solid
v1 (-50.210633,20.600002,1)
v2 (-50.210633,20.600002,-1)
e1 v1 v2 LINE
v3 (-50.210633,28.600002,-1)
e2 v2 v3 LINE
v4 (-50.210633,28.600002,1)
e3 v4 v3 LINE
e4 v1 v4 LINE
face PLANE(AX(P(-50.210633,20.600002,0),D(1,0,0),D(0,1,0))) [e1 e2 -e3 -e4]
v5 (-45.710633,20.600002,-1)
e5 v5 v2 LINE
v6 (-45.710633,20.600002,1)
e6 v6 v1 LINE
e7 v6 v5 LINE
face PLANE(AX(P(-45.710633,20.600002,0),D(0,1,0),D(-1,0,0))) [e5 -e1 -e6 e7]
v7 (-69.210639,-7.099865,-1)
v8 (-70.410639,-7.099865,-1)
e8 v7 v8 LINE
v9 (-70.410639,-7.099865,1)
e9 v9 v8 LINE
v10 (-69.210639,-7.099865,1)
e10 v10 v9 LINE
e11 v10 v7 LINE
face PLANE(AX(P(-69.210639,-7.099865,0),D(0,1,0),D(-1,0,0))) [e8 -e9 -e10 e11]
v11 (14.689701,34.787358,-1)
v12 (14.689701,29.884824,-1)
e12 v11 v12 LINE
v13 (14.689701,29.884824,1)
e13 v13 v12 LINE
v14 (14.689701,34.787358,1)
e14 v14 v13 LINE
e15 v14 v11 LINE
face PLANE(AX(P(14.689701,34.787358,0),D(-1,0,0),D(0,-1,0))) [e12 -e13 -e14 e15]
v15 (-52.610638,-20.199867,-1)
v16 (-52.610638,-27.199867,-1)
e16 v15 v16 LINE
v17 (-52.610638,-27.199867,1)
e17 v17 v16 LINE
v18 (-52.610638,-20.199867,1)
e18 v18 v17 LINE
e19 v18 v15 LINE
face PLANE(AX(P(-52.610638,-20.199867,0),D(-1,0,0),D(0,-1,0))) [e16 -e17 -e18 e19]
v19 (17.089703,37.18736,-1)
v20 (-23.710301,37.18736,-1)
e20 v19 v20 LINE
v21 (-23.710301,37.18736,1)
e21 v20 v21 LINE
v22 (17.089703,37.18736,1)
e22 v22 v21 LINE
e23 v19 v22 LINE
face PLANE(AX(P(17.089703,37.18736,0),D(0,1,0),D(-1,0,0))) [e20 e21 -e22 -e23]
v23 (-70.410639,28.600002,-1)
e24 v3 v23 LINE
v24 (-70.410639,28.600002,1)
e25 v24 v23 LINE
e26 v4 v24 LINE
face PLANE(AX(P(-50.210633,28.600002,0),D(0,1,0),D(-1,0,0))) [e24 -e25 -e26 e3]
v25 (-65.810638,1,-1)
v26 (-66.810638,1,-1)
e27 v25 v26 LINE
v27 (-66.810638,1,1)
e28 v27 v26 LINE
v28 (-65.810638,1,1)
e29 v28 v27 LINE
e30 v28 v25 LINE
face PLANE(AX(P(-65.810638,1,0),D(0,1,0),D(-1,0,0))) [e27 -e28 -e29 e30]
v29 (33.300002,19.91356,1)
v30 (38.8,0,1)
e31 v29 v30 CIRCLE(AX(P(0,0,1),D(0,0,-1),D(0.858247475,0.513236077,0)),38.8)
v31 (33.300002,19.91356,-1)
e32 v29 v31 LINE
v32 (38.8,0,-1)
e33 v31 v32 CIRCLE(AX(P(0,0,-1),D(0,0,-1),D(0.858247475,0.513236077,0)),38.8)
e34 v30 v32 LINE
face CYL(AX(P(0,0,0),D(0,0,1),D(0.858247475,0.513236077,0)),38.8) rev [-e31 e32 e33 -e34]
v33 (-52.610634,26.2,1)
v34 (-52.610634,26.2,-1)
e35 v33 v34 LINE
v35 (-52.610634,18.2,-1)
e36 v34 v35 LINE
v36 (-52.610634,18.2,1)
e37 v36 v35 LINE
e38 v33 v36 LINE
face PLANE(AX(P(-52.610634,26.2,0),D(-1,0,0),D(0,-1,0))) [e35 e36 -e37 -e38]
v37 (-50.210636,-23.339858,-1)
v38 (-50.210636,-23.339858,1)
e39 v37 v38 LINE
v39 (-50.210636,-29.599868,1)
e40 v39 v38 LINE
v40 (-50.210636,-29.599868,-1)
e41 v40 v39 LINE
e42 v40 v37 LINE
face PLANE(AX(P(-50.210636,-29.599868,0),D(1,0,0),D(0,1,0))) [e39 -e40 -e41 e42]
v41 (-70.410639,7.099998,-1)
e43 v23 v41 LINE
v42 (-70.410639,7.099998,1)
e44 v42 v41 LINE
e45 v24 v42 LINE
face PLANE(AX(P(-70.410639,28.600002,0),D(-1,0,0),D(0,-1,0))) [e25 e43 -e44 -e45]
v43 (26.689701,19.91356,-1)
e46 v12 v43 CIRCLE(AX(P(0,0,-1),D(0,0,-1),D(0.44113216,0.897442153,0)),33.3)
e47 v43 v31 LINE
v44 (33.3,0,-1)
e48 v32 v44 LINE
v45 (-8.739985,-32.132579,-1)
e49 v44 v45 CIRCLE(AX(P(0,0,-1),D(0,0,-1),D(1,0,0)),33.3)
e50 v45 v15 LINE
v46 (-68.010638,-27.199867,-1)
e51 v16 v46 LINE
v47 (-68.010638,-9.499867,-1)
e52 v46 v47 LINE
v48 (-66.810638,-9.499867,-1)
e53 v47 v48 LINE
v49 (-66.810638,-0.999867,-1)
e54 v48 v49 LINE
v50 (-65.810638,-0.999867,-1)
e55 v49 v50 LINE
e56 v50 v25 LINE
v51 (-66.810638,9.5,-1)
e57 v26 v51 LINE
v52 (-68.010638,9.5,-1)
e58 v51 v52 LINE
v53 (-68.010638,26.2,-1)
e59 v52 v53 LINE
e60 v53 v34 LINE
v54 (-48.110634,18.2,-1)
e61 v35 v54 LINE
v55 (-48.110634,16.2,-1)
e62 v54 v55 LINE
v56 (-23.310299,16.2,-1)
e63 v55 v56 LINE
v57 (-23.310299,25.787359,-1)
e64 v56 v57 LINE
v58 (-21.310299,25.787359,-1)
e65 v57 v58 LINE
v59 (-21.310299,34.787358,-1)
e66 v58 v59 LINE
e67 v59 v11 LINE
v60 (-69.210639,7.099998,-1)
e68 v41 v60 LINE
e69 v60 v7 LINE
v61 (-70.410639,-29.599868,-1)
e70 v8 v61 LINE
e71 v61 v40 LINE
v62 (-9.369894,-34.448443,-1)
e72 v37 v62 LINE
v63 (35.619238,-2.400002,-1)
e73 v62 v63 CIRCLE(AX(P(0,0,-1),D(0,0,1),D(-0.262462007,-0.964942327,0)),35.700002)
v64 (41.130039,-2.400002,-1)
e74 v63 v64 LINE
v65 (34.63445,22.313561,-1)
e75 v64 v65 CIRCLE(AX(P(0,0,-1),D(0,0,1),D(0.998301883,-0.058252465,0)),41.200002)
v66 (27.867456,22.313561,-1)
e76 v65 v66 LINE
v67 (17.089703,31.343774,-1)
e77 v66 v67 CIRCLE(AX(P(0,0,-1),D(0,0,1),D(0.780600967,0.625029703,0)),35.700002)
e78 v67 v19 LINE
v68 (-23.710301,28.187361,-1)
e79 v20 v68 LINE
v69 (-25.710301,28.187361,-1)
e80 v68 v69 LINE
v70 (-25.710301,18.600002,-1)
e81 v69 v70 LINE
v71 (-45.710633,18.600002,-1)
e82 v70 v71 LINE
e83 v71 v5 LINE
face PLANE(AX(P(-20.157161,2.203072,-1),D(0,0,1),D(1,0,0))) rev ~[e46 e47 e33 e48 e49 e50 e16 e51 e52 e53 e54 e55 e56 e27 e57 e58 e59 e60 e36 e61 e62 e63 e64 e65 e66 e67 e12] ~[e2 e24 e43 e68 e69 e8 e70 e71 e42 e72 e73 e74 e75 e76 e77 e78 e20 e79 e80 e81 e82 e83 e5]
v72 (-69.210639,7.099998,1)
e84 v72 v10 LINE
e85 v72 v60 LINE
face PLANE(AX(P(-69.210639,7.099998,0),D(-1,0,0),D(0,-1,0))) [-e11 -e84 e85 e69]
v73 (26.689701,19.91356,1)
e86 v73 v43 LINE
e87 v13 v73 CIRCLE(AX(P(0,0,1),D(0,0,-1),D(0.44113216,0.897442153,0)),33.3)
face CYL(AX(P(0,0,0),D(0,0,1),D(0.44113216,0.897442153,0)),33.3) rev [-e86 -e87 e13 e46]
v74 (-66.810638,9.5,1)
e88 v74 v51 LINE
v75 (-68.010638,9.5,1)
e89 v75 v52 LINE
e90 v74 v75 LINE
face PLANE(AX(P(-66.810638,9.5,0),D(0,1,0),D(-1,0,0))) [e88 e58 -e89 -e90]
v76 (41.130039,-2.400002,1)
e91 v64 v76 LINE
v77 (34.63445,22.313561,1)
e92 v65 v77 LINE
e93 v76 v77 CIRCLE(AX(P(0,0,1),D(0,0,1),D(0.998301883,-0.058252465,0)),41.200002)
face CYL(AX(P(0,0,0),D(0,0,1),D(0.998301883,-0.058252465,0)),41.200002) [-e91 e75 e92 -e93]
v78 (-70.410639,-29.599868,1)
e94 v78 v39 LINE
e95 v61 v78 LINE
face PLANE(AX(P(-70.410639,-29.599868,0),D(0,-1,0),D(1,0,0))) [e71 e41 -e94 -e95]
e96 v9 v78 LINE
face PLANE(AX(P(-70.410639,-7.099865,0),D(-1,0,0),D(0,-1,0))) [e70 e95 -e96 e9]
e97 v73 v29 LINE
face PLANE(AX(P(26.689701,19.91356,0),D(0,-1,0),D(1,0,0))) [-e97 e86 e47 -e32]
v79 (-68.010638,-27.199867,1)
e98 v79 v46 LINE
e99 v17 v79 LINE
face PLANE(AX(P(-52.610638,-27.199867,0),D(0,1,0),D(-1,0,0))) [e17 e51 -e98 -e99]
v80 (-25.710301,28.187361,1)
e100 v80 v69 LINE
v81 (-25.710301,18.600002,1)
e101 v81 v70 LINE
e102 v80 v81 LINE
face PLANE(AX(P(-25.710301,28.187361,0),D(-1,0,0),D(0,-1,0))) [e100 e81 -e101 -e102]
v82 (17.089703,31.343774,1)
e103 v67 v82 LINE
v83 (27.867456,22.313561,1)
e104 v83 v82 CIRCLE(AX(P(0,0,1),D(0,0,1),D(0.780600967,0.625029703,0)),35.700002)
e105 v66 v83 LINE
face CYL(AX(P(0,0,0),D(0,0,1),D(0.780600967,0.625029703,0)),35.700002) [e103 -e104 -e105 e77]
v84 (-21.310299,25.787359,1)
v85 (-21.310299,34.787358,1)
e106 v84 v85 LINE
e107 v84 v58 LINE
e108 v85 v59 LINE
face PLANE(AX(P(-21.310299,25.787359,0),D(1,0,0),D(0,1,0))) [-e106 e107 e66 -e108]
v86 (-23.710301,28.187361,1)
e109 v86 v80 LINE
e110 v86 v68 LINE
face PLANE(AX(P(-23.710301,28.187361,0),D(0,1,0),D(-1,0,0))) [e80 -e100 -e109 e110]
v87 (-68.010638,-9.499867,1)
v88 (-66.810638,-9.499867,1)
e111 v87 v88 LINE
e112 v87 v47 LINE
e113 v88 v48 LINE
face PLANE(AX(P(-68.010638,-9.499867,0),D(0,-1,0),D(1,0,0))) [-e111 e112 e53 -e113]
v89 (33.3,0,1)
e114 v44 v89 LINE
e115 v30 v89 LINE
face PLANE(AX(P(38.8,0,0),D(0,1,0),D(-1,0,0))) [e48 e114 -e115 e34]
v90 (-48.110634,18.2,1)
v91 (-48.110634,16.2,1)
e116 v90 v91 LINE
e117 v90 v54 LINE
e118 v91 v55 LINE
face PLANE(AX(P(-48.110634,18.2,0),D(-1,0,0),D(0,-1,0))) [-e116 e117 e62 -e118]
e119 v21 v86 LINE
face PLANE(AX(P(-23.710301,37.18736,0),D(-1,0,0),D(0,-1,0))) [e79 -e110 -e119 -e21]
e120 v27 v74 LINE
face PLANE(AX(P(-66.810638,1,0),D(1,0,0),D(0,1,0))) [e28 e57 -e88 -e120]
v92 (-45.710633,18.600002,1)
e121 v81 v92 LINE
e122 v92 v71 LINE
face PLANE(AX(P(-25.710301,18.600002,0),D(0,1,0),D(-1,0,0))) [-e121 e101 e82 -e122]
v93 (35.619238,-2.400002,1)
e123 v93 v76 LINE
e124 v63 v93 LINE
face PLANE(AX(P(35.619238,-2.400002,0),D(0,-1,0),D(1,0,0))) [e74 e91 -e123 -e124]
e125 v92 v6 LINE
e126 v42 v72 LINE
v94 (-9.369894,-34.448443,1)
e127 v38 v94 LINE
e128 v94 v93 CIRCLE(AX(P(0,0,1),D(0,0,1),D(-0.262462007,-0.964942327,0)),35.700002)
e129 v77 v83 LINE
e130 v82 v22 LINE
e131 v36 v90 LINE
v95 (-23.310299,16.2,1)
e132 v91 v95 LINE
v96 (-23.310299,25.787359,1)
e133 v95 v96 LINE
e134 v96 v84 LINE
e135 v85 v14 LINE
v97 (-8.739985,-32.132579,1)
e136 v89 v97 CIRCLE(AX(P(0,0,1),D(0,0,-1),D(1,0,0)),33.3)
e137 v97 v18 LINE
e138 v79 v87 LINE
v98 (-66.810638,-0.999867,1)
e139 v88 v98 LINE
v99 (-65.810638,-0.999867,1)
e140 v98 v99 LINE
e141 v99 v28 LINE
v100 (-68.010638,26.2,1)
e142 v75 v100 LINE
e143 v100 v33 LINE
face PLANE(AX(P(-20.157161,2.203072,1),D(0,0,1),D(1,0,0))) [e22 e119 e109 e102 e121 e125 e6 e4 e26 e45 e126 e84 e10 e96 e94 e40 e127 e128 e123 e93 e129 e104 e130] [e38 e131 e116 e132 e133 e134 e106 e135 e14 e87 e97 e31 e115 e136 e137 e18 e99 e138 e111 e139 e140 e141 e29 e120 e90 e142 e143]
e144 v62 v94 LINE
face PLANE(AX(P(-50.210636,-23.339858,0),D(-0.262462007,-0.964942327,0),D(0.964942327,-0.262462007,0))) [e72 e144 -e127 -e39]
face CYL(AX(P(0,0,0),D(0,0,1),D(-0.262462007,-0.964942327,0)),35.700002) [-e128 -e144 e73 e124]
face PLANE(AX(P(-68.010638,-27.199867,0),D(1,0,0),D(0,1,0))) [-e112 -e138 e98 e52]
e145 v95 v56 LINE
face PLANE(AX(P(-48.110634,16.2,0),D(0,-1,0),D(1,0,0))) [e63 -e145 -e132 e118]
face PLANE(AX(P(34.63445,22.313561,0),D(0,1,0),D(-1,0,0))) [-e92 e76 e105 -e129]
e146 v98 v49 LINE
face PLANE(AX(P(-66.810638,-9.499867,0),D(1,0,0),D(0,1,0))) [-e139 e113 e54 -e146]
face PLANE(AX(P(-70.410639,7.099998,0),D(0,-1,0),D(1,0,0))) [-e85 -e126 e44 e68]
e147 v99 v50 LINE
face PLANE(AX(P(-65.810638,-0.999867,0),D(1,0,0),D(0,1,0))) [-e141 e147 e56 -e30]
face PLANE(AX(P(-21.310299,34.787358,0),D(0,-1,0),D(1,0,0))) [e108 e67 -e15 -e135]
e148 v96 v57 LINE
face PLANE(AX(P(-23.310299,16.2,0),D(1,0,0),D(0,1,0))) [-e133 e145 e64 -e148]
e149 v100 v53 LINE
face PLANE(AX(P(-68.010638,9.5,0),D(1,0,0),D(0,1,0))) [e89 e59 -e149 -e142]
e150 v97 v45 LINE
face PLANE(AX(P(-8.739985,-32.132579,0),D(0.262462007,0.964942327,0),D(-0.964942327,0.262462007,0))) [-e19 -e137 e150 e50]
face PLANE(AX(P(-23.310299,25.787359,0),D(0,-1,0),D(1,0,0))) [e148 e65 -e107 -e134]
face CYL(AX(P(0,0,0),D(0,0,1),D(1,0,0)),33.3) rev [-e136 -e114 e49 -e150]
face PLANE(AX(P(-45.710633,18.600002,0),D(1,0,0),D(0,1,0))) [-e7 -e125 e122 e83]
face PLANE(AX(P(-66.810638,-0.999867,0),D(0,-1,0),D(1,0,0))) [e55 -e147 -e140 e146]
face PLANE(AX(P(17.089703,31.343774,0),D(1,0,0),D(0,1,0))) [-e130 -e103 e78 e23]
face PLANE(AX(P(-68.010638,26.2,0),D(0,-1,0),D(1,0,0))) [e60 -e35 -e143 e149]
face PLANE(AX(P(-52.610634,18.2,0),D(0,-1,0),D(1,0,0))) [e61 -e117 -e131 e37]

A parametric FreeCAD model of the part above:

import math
import FreeCAD as App
import Part
import Sketcher

V = App.Vector
Q = App.Units.Quantity

doc = App.newDocument("Part")
body = doc.addObject("PartDesign::Body", "Body")

sketch1 = body.newObject("Sketcher::SketchObject", "Sketch")
sketch1.AttachmentSupport = (doc.getObject("XY_Plane"), [""])
sketch1.MapMode = "FlatFace"
sketch1.addGeometry([
    Part.LineSegment(V(-70.410639, -7.099865, 0), V(-70.410639, -29.599868, 0)),
    Part.LineSegment(V(-70.410639, -29.599868, 0), V(-50.210636, -29.599868, 0)),
    Part.LineSegment(V(-50.210636, -29.599868, 0), V(-50.210636, -23.339858, 0)),
    Part.LineSegment(V(-50.210636, -23.339858, 0), V(-9.369894, -34.448443, 0)),
    Part.ArcOfCircle(Part.Circle(V(0, 0, 0), V(0, 0, 1), 35.700002), math.radians(-105.216199), math.radians(-3.854727)),
    Part.LineSegment(V(35.619238, -2.400002, 0), V(41.130039, -2.400002, 0)),
    Part.ArcOfCircle(Part.Circle(V(0, 0, 0), V(0, 0, 1), 41.200002), math.radians(-3.339511), math.radians(32.79203)),
    Part.LineSegment(V(34.63445, 22.313561, 0), V(27.867456, 22.313561, 0)),
    Part.ArcOfCircle(Part.Circle(V(0, 0, 0), V(0, 0, 1), 35.700002), math.radians(38.684368), math.radians(61.399264)),
    Part.LineSegment(V(17.089703, 31.343774, 0), V(17.089703, 37.18736, 0)),
    Part.LineSegment(V(17.089703, 37.18736, 0), V(-23.710301, 37.18736, 0)),
    Part.LineSegment(V(-23.710301, 37.18736, 0), V(-23.710301, 28.187361, 0)),
    Part.LineSegment(V(-23.710301, 28.187361, 0), V(-25.710301, 28.187361, 0)),
    Part.LineSegment(V(-25.710301, 28.187361, 0), V(-25.710301, 18.600002, 0)),
    Part.LineSegment(V(-25.710301, 18.600002, 0), V(-45.710633, 18.600002, 0)),
    Part.LineSegment(V(-45.710633, 18.600002, 0), V(-45.710633, 20.600002, 0)),
    Part.LineSegment(V(-45.710633, 20.600002, 0), V(-50.210633, 20.600002, 0)),
    Part.LineSegment(V(-50.210633, 20.600002, 0), V(-50.210633, 28.600002, 0)),
    Part.LineSegment(V(-50.210633, 28.600002, 0), V(-70.410639, 28.600002, 0)),
    Part.LineSegment(V(-70.410639, 28.600002, 0), V(-70.410639, 7.099998, 0)),
    Part.LineSegment(V(-70.410639, 7.099998, 0), V(-69.210639, 7.099998, 0)),
    Part.LineSegment(V(-69.210639, 7.099998, 0), V(-69.210639, -7.099865, 0)),
    Part.LineSegment(V(-69.210639, -7.099865, 0), V(-70.410639, -7.099865, 0)),
    Part.LineSegment(V(38.8, 0, 0), V(33.3, 0, 0)),
    Part.ArcOfCircle(Part.Circle(V(0, 0, 0), V(0, 0, 1), 33.3), math.radians(-105.216199), math.radians(0)),
    Part.LineSegment(V(-8.739985, -32.132579, 0), V(-52.610638, -20.199867, 0)),
    Part.LineSegment(V(-52.610638, -20.199867, 0), V(-52.610638, -27.199867, 0)),
    Part.LineSegment(V(-52.610638, -27.199867, 0), V(-68.010638, -27.199867, 0)),
    Part.LineSegment(V(-68.010638, -27.199867, 0), V(-68.010638, -9.499867, 0)),
    Part.LineSegment(V(-68.010638, -9.499867, 0), V(-66.810638, -9.499867, 0)),
    Part.LineSegment(V(-66.810638, -9.499867, 0), V(-66.810638, -0.999867, 0)),
    Part.LineSegment(V(-66.810638, -0.999867, 0), V(-65.810638, -0.999867, 0)),
    Part.LineSegment(V(-65.810638, -0.999867, 0), V(-65.810638, 1, 0)),
    Part.LineSegment(V(-65.810638, 1, 0), V(-66.810638, 1, 0)),
    Part.LineSegment(V(-66.810638, 1, 0), V(-66.810638, 9.5, 0)),
    Part.LineSegment(V(-66.810638, 9.5, 0), V(-68.010638, 9.5, 0)),
    Part.LineSegment(V(-68.010638, 9.5, 0), V(-68.010638, 26.2, 0)),
    Part.LineSegment(V(-68.010638, 26.2, 0), V(-52.610634, 26.2, 0)),
    Part.LineSegment(V(-52.610634, 26.2, 0), V(-52.610634, 18.2, 0)),
    Part.LineSegment(V(-52.610634, 18.2, 0), V(-48.110634, 18.2, 0)),
    Part.LineSegment(V(-48.110634, 18.2, 0), V(-48.110634, 16.2, 0)),
    Part.LineSegment(V(-48.110634, 16.2, 0), V(-23.310299, 16.2, 0)),
    Part.LineSegment(V(-23.310299, 16.2, 0), V(-23.310299, 25.787359, 0)),
    Part.LineSegment(V(-23.310299, 25.787359, 0), V(-21.310299, 25.787359, 0)),
    Part.LineSegment(V(-21.310299, 25.787359, 0), V(-21.310299, 34.787358, 0)),
    Part.LineSegment(V(-21.310299, 34.787358, 0), V(14.689701, 34.787358, 0)),
    Part.LineSegment(V(14.689701, 34.787358, 0), V(14.689701, 29.884824, 0)),
    Part.ArcOfCircle(Part.Circle(V(0, 0, 0), V(0, 0, 1), 33.3), math.radians(36.727135), math.radians(63.82386)),
    Part.LineSegment(V(26.689701, 19.91356, 0), V(33.300002, 19.91356, 0)),
    Part.ArcOfCircle(Part.Circle(V(0, 0, 0), V(0, 0, 1), 38.8), math.radians(0), math.radians(30.879625)),
], False)
sketch1.addConstraint([
    Sketcher.Constraint("Coincident", 0, 2, 1, 1),
    Sketcher.Constraint("Coincident", 1, 2, 2, 1),
    Sketcher.Constraint("Coincident", 2, 2, 3, 1),
    Sketcher.Constraint("Tangent", 3, 2, 4, 1),
    Sketcher.Constraint("Coincident", 4, 2, 5, 1),
    Sketcher.Constraint("Coincident", 5, 2, 6, 1),
    Sketcher.Constraint("Coincident", 6, 2, 7, 1),
    Sketcher.Constraint("Coincident", 7, 2, 8, 1),
    Sketcher.Constraint("Coincident", 8, 2, 9, 1),
    Sketcher.Constraint("Coincident", 9, 2, 10, 1),
    Sketcher.Constraint("Coincident", 10, 2, 11, 1),
    Sketcher.Constraint("Coincident", 11, 2, 12, 1),
    Sketcher.Constraint("Coincident", 12, 2, 13, 1),
    Sketcher.Constraint("Coincident", 13, 2, 14, 1),
    Sketcher.Constraint("Coincident", 14, 2, 15, 1),
    Sketcher.Constraint("Coincident", 15, 2, 16, 1),
    Sketcher.Constraint("Coincident", 16, 2, 17, 1),
    Sketcher.Constraint("Coincident", 17, 2, 18, 1),
    Sketcher.Constraint("Coincident", 18, 2, 19, 1),
    Sketcher.Constraint("Coincident", 19, 2, 20, 1),
    Sketcher.Constraint("Coincident", 20, 2, 21, 1),
    Sketcher.Constraint("Coincident", 21, 2, 22, 1),
    Sketcher.Constraint("Coincident", 22, 2, 0, 1),
    Sketcher.Constraint("Coincident", 23, 2, 24, 2),
    Sketcher.Constraint("Tangent", 24, 1, 25, 1),
    Sketcher.Constraint("Coincident", 25, 2, 26, 1),
    Sketcher.Constraint("Coincident", 26, 2, 27, 1),
    Sketcher.Constraint("Coincident", 27, 2, 28, 1),
    Sketcher.Constraint("Coincident", 28, 2, 29, 1),
    Sketcher.Constraint("Coincident", 29, 2, 30, 1),
    Sketcher.Constraint("Coincident", 30, 2, 31, 1),
    Sketcher.Constraint("Coincident", 31, 2, 32, 1),
    Sketcher.Constraint("Coincident", 32, 2, 33, 1),
    Sketcher.Constraint("Coincident", 33, 2, 34, 1),
    Sketcher.Constraint("Coincident", 34, 2, 35, 1),
    Sketcher.Constraint("Coincident", 35, 2, 36, 1),
    Sketcher.Constraint("Coincident", 36, 2, 37, 1),
    Sketcher.Constraint("Coincident", 37, 2, 38, 1),
    Sketcher.Constraint("Coincident", 38, 2, 39, 1),
    Sketcher.Constraint("Coincident", 39, 2, 40, 1),
    Sketcher.Constraint("Coincident", 40, 2, 41, 1),
    Sketcher.Constraint("Coincident", 41, 2, 42, 1),
    Sketcher.Constraint("Coincident", 42, 2, 43, 1),
    Sketcher.Constraint("Coincident", 43, 2, 44, 1),
    Sketcher.Constraint("Coincident", 44, 2, 45, 1),
    Sketcher.Constraint("Coincident", 45, 2, 46, 1),
    Sketcher.Constraint("Coincident", 46, 2, 47, 2),
    Sketcher.Constraint("Coincident", 47, 1, 48, 1),
    Sketcher.Constraint("Coincident", 48, 2, 49, 2),
    Sketcher.Constraint("Coincident", 49, 1, 23, 1),
    Sketcher.Constraint("Vertical", 0),
    Sketcher.Constraint("Horizontal", 1),
    Sketcher.Constraint("Vertical", 2),
    Sketcher.Constraint("Horizontal", 5),
    Sketcher.Constraint("Horizontal", 7),
    Sketcher.Constraint("Vertical", 9),
    Sketcher.Constraint("Horizontal", 10),
    Sketcher.Constraint("Vertical", 11),
    Sketcher.Constraint("Horizontal", 12),
    Sketcher.Constraint("Vertical", 13),
    Sketcher.Constraint("Horizontal", 14),
    Sketcher.Constraint("Vertical", 15),
    Sketcher.Constraint("Horizontal", 16),
    Sketcher.Constraint("Vertical", 17),
    Sketcher.Constraint("Horizontal", 18),
    Sketcher.Constraint("Vertical", 19),
    Sketcher.Constraint("Horizontal", 20),
    Sketcher.Constraint("Vertical", 21),
    Sketcher.Constraint("Horizontal", 22),
    Sketcher.Constraint("Horizontal", 23),
    Sketcher.Constraint("Vertical", 26),
    Sketcher.Constraint("Horizontal", 27),
    Sketcher.Constraint("Vertical", 28),
    Sketcher.Constraint("Horizontal", 29),
    Sketcher.Constraint("Vertical", 30),
    Sketcher.Constraint("Horizontal", 31),
    Sketcher.Constraint("Vertical", 32),
    Sketcher.Constraint("Horizontal", 33),
    Sketcher.Constraint("Vertical", 34),
    Sketcher.Constraint("Horizontal", 35),
    Sketcher.Constraint("Vertical", 36),
    Sketcher.Constraint("Horizontal", 37),
    Sketcher.Constraint("Vertical", 38),
    Sketcher.Constraint("Horizontal", 39),
    Sketcher.Constraint("Vertical", 40),
    Sketcher.Constraint("Horizontal", 41),
    Sketcher.Constraint("Vertical", 42),
    Sketcher.Constraint("Horizontal", 43),
    Sketcher.Constraint("Vertical", 44),
    Sketcher.Constraint("Horizontal", 45),
    Sketcher.Constraint("Vertical", 46),
    Sketcher.Constraint("Horizontal", 48),
    Sketcher.Constraint("Coincident", 4, 3, -1, 1),
    Sketcher.Constraint("Coincident", 6, 3, -1, 1),
    Sketcher.Constraint("Coincident", 8, 3, -1, 1),
    Sketcher.Constraint("Coincident", 24, 3, -1, 1),
    Sketcher.Constraint("Coincident", 47, 3, -1, 1),
    Sketcher.Constraint("Coincident", 49, 3, -1, 1),
    Sketcher.Constraint("Equal", 4, 8),
    Sketcher.Constraint("Equal", 24, 47),
    Sketcher.Constraint("PointOnObject", 23, 2, -1),
    Sketcher.Constraint("Parallel", 3, 25),
    Sketcher.Constraint("Vertical", 0, 2, 18, 2),
    Sketcher.Constraint("Vertical", 30, 2, 33, 2),
    Sketcher.Constraint("Vertical", 28, 2, 35, 2),
    Sketcher.Constraint("Equal", 22, 29),
    Sketcher.Constraint("Equal", 16, 39),
    Sketcher.Constraint("Equal", 12, 43),
    Sketcher.Constraint("Equal", 43, 15),
    Sketcher.Constraint("Equal", 30, 34),
    Sketcher.Constraint("Equal", 17, 38),
    Sketcher.Constraint("Equal", 15, 40),
    Sketcher.Constraint("Equal", 13, 42),
    Sketcher.Constraint("Equal", 11, 44),
    Sketcher.Constraint("Radius", 4, Q("35.700002 mm")),
    Sketcher.Constraint("Radius", 6, Q("41.200002 mm")),
    Sketcher.Constraint("Radius", 24, Q("33.3 mm")),
    Sketcher.Constraint("Radius", 49, Q("38.8 mm")),
    Sketcher.Constraint("DistanceX", 12, 2, 12, 1, Q("2 mm")),
    Sketcher.Constraint("DistanceX", 31, 1, 31, 2, Q("1 mm")),
    Sketcher.Constraint("DistanceX", 45, 1, 45, 2, Q("36 mm")),
    Sketcher.Constraint("DistanceY", 11, 2, 11, 1, Q("8.999999 mm")),
    Sketcher.Constraint("DistanceY", 17, 1, 17, 2, Q("8 mm")),
    Sketcher.Constraint("DistanceY", 26, 2, 26, 1, Q("7 mm")),
    Sketcher.Constraint("DistanceX", 16, 2, 16, 1, Q("4.5 mm")),
    Sketcher.Constraint("DistanceX", 20, 1, 20, 2, Q("1.2 mm")),
    Sketcher.Constraint("DistanceX", 27, 2, 27, 1, Q("15.4 mm")),
    Sketcher.Constraint("DistanceY", 28, 1, 28, 2, Q("17.7 mm")),
    Sketcher.Constraint("DistanceY", 30, 1, 30, 2, Q("8.5 mm")),
    Sketcher.Constraint("DistanceY", 36, 1, 36, 2, Q("16.7 mm")),
    Sketcher.Constraint("DistanceY", -1, 1, 32, 2, Q("1 mm")),
    Sketcher.Constraint("DistanceX", 46, 2, 47, 1, Q("12 mm")),
    Sketcher.Constraint("DistanceY", 4, 2, -1, 1, Q("2.400002 mm")),
    Sketcher.Constraint("DistanceY", -1, 1, 13, 2, Q("18.600002 mm")),
    Sketcher.Constraint("DistanceY", -1, 1, 19, 2, Q("7.099998 mm")),
    Sketcher.Constraint("DistanceX", 25, 2, 2, 2, Q("2.400002 mm")),
    Sketcher.Constraint("DistanceY", 1, 2, 25, 2, Q("9.400002 mm")),
    Sketcher.Constraint("DistanceX", 0, 2, 25, 2, Q("17.800002 mm")),
    Sketcher.Constraint("DistanceY", 25, 2, 21, 2, Q("13.100002 mm")),
    Sketcher.Constraint("DistanceX", 37, 2, 17, 2, Q("2.400002 mm")),
    Sketcher.Constraint("DistanceX", 13, 2, 41, 2, Q("2.400002 mm")),
    Sketcher.Constraint("DistanceX", 45, 2, 9, 2, Q("2.400002 mm")),
    Sketcher.Constraint("DistanceY", 47, 1, 7, 2, Q("2.400002 mm")),
    Sketcher.Constraint("DistanceX", 48, 1, 48, 2, Q("6.610301 mm")),
    Sketcher.Constraint("DistanceX", 14, 2, 14, 1, Q("20.000332 mm")),
    Sketcher.Constraint("DistanceY", 2, 1, 2, 2, Q("6.26001 mm")),
    Sketcher.Constraint("DistanceY", 13, 2, 13, 1, Q("9.587359 mm")),
    Sketcher.Constraint("Distance", 3, Q("42.324542 mm")),
])
pad1 = body.newObject("PartDesign::Pad", "Pad")
pad1.Profile = sketch1
pad1.Length = 2
pad1.Midplane = True

doc.recompute()
